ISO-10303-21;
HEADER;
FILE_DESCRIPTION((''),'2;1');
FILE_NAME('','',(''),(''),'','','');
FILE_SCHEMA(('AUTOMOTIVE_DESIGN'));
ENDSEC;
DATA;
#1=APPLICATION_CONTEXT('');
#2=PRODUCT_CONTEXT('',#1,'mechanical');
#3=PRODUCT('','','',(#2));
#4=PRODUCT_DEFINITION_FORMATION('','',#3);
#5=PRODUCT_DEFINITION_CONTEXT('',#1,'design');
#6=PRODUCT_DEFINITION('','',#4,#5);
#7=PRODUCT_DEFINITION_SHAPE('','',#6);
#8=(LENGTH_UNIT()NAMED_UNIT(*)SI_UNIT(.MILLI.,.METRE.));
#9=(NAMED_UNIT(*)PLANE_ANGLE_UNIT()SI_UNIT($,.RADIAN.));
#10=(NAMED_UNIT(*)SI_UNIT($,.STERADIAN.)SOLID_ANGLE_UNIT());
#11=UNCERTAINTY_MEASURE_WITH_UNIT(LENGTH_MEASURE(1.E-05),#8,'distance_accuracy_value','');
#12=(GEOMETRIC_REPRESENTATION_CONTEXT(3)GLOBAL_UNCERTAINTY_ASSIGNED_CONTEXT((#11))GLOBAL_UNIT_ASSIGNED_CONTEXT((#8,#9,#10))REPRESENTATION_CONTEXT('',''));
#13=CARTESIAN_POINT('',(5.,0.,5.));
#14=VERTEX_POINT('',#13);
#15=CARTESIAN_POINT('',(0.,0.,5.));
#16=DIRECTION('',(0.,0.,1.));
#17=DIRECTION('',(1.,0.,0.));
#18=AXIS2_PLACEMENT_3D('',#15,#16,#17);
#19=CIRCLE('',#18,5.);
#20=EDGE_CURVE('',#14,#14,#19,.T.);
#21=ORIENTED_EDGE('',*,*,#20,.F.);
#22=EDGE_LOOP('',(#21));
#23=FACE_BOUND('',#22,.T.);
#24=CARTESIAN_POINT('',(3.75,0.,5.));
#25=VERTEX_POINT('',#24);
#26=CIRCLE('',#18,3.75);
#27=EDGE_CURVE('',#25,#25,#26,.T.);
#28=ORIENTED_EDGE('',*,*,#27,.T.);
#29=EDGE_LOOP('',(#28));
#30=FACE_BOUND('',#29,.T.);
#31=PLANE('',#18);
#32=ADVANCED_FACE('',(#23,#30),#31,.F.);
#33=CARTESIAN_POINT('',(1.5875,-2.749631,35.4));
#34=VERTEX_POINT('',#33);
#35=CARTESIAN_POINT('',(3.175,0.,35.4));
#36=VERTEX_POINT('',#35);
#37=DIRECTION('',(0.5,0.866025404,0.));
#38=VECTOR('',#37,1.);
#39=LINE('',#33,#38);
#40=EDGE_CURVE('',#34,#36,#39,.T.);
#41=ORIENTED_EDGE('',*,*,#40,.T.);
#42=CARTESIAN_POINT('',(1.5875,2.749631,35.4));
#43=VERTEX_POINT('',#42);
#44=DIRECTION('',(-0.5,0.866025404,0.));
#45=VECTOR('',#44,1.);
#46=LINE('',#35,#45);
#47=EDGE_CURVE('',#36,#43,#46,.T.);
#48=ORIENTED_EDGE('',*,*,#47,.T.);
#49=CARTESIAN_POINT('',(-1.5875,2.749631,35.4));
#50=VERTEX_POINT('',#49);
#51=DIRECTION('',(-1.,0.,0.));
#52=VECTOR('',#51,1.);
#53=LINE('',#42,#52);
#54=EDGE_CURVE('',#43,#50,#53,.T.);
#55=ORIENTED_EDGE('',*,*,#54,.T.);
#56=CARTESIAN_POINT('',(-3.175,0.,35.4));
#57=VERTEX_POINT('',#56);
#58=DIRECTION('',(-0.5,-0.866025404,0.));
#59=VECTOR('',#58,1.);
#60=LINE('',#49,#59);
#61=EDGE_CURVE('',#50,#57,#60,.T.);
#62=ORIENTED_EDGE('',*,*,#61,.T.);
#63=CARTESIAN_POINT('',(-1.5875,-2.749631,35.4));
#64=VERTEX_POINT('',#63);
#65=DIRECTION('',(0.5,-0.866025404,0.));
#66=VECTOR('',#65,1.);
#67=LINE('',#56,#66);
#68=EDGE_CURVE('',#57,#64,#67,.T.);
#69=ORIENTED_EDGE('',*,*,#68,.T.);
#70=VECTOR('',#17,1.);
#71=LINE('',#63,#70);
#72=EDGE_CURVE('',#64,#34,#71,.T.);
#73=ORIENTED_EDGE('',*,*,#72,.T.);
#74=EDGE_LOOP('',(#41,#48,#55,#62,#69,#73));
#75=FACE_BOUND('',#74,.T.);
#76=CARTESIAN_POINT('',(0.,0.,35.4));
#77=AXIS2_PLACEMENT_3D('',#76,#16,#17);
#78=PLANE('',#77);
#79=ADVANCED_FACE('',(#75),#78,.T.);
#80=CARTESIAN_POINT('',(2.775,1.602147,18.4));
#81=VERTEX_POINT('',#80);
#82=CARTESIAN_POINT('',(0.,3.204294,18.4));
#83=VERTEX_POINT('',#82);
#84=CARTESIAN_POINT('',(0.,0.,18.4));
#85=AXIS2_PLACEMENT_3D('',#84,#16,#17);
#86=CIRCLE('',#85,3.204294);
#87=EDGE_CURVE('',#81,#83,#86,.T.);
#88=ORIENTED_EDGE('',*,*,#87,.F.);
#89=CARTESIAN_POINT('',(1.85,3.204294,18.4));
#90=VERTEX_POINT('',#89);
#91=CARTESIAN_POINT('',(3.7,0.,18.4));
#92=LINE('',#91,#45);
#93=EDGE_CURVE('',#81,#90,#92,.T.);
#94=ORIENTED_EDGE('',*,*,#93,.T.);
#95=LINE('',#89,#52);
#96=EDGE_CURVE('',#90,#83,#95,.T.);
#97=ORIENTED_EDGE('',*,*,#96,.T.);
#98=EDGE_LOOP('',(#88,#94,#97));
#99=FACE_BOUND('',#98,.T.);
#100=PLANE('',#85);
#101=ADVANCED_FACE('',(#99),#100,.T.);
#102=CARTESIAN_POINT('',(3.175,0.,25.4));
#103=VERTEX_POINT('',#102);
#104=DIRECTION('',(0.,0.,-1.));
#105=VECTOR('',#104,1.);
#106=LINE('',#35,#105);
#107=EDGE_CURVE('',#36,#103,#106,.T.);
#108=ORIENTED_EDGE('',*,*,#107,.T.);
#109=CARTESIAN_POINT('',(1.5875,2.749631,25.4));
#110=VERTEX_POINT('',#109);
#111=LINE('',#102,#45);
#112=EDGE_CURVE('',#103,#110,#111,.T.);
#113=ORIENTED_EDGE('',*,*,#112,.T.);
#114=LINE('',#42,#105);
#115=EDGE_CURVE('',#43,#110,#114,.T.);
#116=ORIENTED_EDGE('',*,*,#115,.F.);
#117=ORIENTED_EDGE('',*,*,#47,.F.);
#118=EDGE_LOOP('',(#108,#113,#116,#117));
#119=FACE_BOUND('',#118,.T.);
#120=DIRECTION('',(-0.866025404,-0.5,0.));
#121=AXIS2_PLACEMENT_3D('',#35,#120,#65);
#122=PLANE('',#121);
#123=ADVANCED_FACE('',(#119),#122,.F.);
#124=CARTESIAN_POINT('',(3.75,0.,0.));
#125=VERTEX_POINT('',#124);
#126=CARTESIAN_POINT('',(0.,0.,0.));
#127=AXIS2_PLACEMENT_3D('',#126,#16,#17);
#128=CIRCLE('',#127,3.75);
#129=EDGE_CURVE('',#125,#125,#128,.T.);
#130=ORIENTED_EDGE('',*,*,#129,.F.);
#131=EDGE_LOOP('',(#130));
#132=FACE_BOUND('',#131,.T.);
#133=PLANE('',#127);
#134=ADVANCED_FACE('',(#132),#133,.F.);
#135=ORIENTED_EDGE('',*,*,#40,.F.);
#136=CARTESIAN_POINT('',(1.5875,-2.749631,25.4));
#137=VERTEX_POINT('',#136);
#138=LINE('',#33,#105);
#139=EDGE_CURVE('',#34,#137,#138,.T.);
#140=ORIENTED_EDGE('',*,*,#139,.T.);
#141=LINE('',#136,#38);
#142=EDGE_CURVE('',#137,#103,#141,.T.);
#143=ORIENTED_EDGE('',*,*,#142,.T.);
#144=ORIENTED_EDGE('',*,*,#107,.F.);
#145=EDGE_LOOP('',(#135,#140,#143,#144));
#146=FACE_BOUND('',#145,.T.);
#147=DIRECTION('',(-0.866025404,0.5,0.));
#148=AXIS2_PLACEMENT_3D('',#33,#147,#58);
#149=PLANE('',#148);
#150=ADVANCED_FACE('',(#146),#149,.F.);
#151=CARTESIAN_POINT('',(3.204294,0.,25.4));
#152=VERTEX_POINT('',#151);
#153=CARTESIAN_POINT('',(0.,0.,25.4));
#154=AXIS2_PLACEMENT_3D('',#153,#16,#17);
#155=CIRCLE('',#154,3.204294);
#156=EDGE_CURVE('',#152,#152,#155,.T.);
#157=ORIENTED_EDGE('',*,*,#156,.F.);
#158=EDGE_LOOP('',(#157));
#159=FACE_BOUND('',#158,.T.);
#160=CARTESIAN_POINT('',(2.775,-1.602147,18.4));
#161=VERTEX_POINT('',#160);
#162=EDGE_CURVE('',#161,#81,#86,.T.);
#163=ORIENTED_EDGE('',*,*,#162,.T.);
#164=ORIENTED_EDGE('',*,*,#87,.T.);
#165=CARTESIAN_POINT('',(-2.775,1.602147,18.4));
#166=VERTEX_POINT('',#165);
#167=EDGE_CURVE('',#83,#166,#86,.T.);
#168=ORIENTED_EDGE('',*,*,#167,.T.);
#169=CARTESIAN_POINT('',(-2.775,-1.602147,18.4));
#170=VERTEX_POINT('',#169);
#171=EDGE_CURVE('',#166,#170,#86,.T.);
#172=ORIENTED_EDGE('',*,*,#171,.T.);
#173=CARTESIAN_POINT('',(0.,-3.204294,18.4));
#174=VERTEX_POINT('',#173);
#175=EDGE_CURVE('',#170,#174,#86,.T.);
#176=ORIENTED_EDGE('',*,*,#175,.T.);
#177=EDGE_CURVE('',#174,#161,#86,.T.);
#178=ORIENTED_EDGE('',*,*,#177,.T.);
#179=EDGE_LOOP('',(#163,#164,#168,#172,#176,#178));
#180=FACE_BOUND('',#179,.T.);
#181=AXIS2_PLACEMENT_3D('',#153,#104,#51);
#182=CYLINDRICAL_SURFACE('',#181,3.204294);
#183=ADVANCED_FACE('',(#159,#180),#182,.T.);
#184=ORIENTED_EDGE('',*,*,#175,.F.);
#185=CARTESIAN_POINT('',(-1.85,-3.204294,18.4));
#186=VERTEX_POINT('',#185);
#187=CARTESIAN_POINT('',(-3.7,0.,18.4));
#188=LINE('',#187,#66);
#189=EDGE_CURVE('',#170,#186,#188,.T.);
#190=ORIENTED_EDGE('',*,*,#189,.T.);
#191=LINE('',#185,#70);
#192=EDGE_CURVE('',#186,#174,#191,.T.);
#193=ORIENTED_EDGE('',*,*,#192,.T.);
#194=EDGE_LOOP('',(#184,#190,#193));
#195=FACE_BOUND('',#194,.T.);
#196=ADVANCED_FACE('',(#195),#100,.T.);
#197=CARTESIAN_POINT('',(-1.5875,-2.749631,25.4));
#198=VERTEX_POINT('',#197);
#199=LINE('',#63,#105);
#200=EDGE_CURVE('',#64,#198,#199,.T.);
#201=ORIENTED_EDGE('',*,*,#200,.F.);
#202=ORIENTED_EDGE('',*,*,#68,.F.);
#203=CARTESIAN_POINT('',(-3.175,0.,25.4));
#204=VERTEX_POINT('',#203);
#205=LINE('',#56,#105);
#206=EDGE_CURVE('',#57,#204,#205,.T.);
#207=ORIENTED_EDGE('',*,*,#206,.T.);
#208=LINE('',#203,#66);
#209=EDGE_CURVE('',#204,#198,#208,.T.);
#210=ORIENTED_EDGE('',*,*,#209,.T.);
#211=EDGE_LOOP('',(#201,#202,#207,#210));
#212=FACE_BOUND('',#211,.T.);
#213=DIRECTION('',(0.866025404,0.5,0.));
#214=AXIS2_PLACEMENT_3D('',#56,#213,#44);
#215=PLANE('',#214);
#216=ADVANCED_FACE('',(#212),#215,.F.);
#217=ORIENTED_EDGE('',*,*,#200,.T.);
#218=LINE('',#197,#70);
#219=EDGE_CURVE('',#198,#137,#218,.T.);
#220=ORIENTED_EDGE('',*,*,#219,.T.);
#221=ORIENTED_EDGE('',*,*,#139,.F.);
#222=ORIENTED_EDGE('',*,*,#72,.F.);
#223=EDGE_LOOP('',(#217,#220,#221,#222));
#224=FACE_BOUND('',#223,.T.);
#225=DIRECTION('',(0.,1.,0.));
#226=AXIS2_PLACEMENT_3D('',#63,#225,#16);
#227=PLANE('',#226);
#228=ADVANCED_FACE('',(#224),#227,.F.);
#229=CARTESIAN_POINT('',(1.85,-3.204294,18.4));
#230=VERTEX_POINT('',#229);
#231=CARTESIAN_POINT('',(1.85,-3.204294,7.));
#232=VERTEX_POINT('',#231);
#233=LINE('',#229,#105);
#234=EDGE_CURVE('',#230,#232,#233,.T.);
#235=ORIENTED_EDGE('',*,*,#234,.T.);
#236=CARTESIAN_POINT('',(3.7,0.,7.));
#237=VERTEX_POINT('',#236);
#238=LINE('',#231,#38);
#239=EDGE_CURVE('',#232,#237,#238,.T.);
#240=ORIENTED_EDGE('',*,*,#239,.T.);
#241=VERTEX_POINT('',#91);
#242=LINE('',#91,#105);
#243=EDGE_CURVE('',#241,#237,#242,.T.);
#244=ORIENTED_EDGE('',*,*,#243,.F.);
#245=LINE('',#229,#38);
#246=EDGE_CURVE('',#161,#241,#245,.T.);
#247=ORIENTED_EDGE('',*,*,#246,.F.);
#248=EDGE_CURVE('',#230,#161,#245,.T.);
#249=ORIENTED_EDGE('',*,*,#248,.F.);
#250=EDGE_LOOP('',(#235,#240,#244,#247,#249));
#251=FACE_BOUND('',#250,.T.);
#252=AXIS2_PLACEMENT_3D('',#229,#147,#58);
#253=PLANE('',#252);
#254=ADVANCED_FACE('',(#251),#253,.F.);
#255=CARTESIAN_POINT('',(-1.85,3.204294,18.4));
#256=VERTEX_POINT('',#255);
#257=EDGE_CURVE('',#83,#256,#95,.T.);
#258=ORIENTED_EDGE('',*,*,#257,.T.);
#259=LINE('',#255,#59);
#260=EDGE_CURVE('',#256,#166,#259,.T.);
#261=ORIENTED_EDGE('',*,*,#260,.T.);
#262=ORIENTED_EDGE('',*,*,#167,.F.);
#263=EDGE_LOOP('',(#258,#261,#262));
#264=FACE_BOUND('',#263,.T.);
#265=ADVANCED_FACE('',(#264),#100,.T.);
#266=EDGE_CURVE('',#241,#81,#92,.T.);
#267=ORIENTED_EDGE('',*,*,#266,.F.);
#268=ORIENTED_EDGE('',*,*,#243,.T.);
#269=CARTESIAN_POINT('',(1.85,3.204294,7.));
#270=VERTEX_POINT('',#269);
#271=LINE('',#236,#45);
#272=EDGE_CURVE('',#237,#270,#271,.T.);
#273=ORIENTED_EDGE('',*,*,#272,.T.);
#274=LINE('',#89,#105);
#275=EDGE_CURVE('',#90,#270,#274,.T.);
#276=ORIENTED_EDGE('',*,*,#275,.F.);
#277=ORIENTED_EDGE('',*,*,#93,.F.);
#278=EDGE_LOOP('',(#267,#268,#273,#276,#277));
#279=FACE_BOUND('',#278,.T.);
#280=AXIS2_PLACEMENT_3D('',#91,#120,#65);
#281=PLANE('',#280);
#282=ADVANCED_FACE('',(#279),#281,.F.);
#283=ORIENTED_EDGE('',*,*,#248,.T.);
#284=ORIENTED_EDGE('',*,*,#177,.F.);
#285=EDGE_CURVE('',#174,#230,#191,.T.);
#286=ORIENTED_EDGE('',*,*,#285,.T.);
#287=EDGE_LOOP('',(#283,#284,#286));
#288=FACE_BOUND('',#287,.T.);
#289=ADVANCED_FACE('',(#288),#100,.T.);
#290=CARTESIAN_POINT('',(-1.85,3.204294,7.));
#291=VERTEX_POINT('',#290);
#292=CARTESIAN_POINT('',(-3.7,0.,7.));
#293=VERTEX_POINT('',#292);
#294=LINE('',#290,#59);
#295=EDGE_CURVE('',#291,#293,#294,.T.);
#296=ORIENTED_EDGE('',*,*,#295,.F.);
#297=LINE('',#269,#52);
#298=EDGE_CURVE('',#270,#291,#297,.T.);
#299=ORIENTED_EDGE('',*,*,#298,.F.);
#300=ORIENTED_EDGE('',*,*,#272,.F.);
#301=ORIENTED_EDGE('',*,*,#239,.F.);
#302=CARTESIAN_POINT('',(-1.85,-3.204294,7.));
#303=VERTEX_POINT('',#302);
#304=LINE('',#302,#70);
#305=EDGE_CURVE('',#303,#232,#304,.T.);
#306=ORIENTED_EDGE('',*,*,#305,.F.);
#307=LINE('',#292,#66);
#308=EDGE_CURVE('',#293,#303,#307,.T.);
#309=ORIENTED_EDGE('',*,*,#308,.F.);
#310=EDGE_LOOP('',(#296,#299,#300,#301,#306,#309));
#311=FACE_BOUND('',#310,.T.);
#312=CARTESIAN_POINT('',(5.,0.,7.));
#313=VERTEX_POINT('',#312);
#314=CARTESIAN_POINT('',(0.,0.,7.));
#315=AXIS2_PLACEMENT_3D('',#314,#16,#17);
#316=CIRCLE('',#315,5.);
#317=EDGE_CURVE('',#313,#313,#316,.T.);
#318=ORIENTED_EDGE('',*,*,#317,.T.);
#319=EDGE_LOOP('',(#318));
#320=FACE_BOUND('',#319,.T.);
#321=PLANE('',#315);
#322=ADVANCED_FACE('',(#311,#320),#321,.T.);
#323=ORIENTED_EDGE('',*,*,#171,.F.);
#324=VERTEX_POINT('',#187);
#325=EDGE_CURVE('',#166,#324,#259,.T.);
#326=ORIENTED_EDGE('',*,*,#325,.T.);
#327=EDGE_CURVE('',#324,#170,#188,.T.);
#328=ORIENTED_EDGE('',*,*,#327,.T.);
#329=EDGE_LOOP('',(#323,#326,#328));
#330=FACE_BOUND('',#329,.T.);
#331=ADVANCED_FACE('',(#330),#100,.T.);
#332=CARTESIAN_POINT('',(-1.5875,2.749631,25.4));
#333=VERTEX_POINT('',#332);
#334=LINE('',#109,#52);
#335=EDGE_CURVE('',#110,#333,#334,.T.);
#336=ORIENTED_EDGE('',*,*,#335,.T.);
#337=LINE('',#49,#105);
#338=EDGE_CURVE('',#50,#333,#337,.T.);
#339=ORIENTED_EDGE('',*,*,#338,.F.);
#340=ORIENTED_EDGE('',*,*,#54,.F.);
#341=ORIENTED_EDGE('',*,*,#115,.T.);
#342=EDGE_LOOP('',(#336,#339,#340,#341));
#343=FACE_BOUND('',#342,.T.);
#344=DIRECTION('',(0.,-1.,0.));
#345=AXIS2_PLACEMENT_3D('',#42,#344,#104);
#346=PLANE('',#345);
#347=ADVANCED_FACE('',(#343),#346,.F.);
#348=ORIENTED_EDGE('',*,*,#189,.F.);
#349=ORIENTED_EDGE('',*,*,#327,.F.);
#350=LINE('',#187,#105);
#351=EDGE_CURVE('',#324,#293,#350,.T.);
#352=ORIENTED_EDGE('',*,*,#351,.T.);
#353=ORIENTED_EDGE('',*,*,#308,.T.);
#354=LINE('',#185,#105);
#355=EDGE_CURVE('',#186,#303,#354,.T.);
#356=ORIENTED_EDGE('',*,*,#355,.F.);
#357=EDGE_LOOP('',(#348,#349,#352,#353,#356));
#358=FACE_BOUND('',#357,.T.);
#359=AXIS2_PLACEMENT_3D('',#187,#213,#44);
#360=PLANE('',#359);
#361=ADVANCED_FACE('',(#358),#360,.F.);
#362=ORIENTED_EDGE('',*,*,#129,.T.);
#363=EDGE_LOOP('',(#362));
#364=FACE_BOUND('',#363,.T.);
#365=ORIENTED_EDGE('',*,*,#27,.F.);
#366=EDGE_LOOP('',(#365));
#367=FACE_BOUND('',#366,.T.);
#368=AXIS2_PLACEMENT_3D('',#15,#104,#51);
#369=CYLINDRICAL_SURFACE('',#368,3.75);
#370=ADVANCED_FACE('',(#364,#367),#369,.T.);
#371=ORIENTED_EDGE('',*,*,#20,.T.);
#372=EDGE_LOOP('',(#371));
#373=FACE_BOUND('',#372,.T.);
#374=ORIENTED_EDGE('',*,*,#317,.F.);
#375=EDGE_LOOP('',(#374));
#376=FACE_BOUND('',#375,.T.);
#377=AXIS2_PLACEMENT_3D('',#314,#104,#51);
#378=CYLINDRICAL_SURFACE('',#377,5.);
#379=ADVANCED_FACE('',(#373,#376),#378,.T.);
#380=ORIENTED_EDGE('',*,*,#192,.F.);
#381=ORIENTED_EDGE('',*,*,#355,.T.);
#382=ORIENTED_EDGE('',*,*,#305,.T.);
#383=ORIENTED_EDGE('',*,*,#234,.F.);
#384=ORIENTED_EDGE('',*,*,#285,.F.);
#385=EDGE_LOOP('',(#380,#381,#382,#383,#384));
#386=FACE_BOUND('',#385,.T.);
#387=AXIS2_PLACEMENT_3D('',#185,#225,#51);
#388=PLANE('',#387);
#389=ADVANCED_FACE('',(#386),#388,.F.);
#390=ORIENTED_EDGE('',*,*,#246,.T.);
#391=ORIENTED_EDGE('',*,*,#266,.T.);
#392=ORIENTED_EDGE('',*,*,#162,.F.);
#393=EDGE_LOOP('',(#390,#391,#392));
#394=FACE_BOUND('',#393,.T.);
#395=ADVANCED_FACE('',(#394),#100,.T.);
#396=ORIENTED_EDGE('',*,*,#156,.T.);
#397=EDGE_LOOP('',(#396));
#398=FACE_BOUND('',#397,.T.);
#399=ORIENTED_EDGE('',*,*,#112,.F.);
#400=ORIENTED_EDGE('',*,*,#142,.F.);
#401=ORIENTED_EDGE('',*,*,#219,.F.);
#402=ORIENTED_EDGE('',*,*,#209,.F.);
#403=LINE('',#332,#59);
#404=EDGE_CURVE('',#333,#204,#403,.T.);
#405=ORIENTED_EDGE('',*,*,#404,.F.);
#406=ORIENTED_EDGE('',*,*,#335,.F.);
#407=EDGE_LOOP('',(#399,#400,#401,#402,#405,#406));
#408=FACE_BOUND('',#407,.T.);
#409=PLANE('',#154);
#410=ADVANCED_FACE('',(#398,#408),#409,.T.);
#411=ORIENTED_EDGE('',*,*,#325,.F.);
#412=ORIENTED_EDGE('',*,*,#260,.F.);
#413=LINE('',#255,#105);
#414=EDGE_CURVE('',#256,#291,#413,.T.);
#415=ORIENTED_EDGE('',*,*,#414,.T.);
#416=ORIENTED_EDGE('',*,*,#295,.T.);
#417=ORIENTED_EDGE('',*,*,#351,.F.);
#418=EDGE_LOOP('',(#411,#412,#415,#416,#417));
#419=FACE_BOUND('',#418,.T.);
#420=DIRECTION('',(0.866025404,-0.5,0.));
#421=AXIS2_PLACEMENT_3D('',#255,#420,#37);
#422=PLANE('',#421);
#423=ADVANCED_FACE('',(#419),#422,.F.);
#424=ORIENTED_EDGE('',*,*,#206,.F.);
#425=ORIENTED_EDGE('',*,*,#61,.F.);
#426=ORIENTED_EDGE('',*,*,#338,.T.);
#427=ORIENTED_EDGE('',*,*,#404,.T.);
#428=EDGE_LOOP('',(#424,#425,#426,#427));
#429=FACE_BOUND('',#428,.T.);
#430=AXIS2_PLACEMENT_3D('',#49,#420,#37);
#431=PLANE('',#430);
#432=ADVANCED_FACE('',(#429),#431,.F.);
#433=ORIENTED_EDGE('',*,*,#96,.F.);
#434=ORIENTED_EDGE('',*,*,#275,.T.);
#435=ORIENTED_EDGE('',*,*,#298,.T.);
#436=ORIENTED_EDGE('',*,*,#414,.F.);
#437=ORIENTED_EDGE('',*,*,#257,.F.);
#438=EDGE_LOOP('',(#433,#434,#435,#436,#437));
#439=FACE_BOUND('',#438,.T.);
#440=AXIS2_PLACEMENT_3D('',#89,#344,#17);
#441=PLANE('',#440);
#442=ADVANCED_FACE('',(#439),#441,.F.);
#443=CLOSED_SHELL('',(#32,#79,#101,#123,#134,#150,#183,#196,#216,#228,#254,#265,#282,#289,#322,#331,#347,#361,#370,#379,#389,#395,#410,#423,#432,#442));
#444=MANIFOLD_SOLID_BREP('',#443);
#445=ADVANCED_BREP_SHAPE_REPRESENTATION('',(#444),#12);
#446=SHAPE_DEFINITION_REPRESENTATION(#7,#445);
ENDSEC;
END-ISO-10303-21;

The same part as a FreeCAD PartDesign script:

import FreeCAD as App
import Part
import Sketcher
Q = App.Units.Quantity


def add_polygon(sketch, points):
    """Adds a closed chain of lines whose ends are joined by coincident constraints."""
    first, n = sketch.GeometryCount, len(points)
    for a, b in zip(points, points[1:] + points[:1]):
        sketch.addGeometry(Part.LineSegment(App.Vector(*a, 0), App.Vector(*b, 0)), False)
    for i in range(n):
        sketch.addConstraint(Sketcher.Constraint("Coincident", first + i, 2, first + (i + 1) % n, 1))

doc = App.newDocument("Part")
params = doc.addObject("Spreadsheet::Sheet", "Params")
for row, (alias, value) in enumerate([
    ("sketch1_diameter", "7.5 mm"),
    ("pad1_length", "5 mm"),
    ("sketch2_diameter", "10 mm"),
    ("pad2_length", "2 mm"),
    ("sketch3_width", "3.7 mm"),
    ("sketch3_length", "3.7 mm"),
    ("pad3_length", "11.4 mm"),
    ("pad4_length", "7 mm"),
    ("pad5_length", "10 mm"),
], start=1):
    params.set(f"A{row}", alias)
    params.set(f"B{row}", "=" + value)
    params.setAlias(f"B{row}", alias)

body = doc.addObject("PartDesign::Body", "Body")

# Sketch on XY plane
sketch1 = body.newObject("Sketcher::SketchObject", "Sketch")
sketch1.AttachmentSupport = (doc.getObject("XY_Plane"), [""])
sketch1.MapMode = "FlatFace"
sketch1.addGeometry(Part.Circle(App.Vector(0, 0, 0), App.Vector(0, 0, 1), 3.8), False)
sketch1.addConstraint([
    Sketcher.Constraint("Coincident", 0, 3, -1, 1),
    Sketcher.Constraint("Diameter", 0, Q("7.5 mm")),
])
sketch1.setExpression("Constraints[1]", "Params.sketch1_diameter")
pad1 = body.newObject("PartDesign::Pad", "Pad")
pad1.Profile = sketch1
pad1.setExpression("Length", "Params.pad1_length")

# Sketch on XY plane
sketch2 = body.newObject("Sketcher::SketchObject", "Sketch001")
sketch2.AttachmentSupport = (doc.getObject("XY_Plane"), [""])
sketch2.MapMode = "FlatFace"
sketch2.AttachmentOffset = App.Placement(App.Vector(0, 0, 5), App.Rotation())
sketch2.addGeometry(Part.Circle(App.Vector(0, 0, 0), App.Vector(0, 0, 1), 5), False)
sketch2.addConstraint([
    Sketcher.Constraint("Coincident", 0, 3, -1, 1),
    Sketcher.Constraint("Diameter", 0, Q("10 mm")),
])
sketch2.setExpression("Constraints[1]", "Params.sketch2_diameter")
pad2 = body.newObject("PartDesign::Pad", "Pad001")
pad2.Profile = sketch2
pad2.setExpression("Length", "Params.pad2_length")

# Sketch on XY plane
sketch3 = body.newObject("Sketcher::SketchObject", "Sketch002")
sketch3.AttachmentSupport = (doc.getObject("XY_Plane"), [""])
sketch3.MapMode = "FlatFace"
sketch3.AttachmentOffset = App.Placement(App.Vector(0, 0, 7), App.Rotation())
add_polygon(sketch3, [(3.7, 0), (1.9, 3.2), (-1.9, 3.2), (-3.7, 0), (-1.9, -3.2), (1.9, -3.2)])  # lines 0-5
sketch3.addConstraint([
    Sketcher.Constraint("Horizontal", 1),
    Sketcher.Constraint("Horizontal", 4),
    Sketcher.Constraint("Symmetric", 0, 2, 3, 2, -1, 1),
    Sketcher.Constraint("Symmetric", 2, 2, 5, 2, -1, 1),
    Sketcher.Constraint("PointOnObject", 2, 2, -1),
    Sketcher.Constraint("Parallel", 2, 5),
    Sketcher.Constraint("Vertical", 1, 2, 3, 2),
    Sketcher.Constraint("Angle", 0, Q("120 deg")),
    Sketcher.Constraint("DistanceX", 1, 2, 1, 1, Q("3.7 mm")),
    Sketcher.Constraint("Distance", 0, Q("3.7 mm")),
])
sketch3.setExpression("Constraints[14]", "Params.sketch3_width")
sketch3.setExpression("Constraints[15]", "Params.sketch3_length")
pad3 = body.newObject("PartDesign::Pad", "Pad002")
pad3.Profile = sketch3
pad3.setExpression("Length", "Params.pad3_length")

# Sketch on XY plane
sketch4 = body.newObject("Sketcher::SketchObject", "Sketch003")
sketch4.AttachmentSupport = (doc.getObject("XY_Plane"), [""])
sketch4.MapMode = "FlatFace"
sketch4.AttachmentOffset = App.Placement(App.Vector(0, 0, 18.4), App.Rotation())
sketch4.addGeometry(Part.Circle(App.Vector(0, 0, 0), App.Vector(0, 0, 1), 3.2), False)
sketch4.addConstraint([
    Sketcher.Constraint("Coincident", 0, 3, -1, 1),
    Sketcher.Constraint("Diameter", 0, Q("6.408588 mm")),
])
pad4 = body.newObject("PartDesign::Pad", "Pad003")
pad4.Profile = sketch4
pad4.setExpression("Length", "Params.pad4_length")

# Sketch on XY plane
sketch5 = body.newObject("Sketcher::SketchObject", "Sketch004")
sketch5.AttachmentSupport = (doc.getObject("XY_Plane"), [""])
sketch5.MapMode = "FlatFace"
sketch5.AttachmentOffset = App.Placement(App.Vector(0, 0, 25.4), App.Rotation())
add_polygon(sketch5, [(3.2, 0), (1.6, 2.7), (-1.6, 2.7), (-3.2, 0), (-1.6, -2.7), (1.6, -2.7)])  # lines 0-5
sketch5.addConstraint([
    Sketcher.Constraint("Horizontal", 1),
    Sketcher.Constraint("Horizontal", 4),
    Sketcher.Constraint("Symmetric", 0, 2, 3, 2, -1, 1),
    Sketcher.Constraint("Symmetric", 2, 2, 5, 2, -1, 1),
    Sketcher.Constraint("PointOnObject", 2, 2, -1),
    Sketcher.Constraint("Parallel", 2, 5),
    Sketcher.Constraint("Vertical", 1, 2, 3, 2),
    Sketcher.Constraint("Angle", 0, Q("120 deg")),
    Sketcher.Constraint("DistanceX", 1, 2, 1, 1, Q("3.175 mm")),
    Sketcher.Constraint("DistanceX", 2, 2, 5, 2, Q("6.35 mm")),
])
pad5 = body.newObject("PartDesign::Pad", "Pad004")
pad5.Profile = sketch5
pad5.setExpression("Length", "Params.pad5_length")

doc.recompute()
